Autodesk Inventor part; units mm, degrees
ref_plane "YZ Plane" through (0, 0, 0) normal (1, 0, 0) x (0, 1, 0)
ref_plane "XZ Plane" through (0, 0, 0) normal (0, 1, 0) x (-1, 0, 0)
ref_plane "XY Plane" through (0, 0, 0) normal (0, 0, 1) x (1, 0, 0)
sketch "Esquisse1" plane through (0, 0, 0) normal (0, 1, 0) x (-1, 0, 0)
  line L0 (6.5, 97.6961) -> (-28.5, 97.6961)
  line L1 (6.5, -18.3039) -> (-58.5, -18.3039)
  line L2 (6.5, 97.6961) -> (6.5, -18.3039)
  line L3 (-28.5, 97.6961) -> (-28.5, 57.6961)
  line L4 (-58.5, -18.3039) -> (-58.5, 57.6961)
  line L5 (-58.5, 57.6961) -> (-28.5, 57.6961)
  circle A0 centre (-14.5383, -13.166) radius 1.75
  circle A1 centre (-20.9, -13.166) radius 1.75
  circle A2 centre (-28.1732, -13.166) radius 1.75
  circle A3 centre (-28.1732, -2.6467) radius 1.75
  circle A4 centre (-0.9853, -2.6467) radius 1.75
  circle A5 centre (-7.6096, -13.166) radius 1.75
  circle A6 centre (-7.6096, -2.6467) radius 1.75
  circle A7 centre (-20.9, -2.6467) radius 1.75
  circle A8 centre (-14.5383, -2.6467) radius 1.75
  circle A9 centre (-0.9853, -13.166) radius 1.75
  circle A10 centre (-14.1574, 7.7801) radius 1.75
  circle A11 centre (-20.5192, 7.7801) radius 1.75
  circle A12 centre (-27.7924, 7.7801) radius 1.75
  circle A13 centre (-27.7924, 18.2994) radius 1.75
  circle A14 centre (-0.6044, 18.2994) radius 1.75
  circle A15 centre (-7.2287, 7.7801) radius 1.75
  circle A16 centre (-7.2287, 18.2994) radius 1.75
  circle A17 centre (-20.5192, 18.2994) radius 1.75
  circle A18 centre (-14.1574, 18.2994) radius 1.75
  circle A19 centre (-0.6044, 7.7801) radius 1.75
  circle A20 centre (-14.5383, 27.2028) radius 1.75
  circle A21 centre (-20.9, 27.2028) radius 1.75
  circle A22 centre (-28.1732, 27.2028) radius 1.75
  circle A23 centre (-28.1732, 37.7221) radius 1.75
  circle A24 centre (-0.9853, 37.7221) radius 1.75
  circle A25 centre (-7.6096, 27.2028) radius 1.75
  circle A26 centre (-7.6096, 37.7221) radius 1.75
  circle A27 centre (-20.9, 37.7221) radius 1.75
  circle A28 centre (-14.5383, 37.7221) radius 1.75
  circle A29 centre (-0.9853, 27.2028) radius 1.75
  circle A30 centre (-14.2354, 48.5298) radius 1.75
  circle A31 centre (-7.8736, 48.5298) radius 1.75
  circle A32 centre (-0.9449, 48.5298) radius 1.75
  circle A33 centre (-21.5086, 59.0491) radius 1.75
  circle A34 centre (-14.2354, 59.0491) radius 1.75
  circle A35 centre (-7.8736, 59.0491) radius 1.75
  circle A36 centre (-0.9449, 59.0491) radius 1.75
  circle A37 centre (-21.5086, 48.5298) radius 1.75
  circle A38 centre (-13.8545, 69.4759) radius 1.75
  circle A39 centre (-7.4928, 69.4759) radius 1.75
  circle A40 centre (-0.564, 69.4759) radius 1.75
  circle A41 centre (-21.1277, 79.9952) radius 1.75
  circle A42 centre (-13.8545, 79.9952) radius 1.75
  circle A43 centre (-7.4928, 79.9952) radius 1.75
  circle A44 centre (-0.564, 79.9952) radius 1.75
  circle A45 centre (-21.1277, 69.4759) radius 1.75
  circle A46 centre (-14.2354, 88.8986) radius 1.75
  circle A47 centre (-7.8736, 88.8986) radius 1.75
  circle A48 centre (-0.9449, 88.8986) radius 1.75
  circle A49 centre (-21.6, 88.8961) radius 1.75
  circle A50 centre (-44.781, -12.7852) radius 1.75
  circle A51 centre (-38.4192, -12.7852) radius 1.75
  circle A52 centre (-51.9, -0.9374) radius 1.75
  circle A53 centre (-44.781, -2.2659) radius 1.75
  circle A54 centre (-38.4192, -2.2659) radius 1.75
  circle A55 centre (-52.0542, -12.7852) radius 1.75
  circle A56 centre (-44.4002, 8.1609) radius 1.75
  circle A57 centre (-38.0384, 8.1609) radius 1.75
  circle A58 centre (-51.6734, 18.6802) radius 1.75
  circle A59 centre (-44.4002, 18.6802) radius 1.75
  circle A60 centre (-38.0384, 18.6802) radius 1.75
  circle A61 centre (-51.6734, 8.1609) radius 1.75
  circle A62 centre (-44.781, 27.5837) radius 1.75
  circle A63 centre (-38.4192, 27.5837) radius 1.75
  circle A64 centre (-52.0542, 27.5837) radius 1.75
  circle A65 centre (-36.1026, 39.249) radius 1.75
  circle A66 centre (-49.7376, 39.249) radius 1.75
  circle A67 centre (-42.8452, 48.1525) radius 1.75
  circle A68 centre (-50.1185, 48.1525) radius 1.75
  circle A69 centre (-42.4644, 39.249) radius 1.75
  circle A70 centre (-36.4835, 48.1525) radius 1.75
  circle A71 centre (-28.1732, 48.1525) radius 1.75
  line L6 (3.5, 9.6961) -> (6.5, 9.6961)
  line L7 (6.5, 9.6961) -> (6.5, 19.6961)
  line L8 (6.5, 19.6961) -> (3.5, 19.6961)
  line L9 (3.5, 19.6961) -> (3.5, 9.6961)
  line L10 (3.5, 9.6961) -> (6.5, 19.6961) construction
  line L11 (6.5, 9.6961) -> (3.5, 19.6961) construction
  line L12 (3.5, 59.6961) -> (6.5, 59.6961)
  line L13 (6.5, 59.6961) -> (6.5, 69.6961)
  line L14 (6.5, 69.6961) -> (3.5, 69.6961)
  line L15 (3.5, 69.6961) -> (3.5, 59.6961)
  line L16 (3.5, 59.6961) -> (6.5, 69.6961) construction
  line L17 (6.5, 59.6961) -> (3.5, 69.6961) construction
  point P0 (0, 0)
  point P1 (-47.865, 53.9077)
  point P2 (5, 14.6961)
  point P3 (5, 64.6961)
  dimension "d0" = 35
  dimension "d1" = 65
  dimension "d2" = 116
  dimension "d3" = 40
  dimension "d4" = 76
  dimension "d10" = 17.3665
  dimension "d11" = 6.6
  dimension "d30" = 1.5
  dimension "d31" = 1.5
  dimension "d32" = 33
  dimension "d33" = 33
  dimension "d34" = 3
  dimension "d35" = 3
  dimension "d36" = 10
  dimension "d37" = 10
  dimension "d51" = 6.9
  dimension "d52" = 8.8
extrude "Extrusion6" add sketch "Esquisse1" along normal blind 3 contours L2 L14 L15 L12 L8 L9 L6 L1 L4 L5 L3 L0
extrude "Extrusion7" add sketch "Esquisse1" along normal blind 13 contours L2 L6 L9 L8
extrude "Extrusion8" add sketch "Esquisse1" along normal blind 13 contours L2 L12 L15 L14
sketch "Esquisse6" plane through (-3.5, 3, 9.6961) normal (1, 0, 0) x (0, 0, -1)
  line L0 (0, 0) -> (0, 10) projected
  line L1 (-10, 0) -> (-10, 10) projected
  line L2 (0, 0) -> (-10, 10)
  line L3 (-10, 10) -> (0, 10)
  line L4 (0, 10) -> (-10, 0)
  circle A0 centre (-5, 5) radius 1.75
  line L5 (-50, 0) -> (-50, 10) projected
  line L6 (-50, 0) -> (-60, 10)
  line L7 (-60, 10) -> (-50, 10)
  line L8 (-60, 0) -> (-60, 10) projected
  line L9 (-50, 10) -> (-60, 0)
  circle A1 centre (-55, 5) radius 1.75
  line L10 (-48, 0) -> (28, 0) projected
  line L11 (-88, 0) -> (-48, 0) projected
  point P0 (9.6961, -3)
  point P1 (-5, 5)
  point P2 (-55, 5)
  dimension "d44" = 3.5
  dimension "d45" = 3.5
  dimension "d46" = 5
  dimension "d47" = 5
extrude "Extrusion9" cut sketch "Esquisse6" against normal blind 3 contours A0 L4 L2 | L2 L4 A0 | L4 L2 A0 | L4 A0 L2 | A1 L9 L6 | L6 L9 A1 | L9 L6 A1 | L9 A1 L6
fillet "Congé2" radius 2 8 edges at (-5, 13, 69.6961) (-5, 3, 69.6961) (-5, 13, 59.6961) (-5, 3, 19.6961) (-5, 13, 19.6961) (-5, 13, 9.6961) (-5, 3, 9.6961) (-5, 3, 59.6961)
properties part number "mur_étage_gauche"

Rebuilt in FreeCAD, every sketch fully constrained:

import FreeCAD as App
import Part
import Sketcher


def edges_at(feature, points):
    """Names of the edges that pass closest to the given points."""
    edges = feature.Shape.Edges
    near = lambda p: min(range(len(edges)), key=lambda i: edges[i].distToShape(Part.Vertex(*p))[0])
    return sorted({f"Edge{near(p) + 1}" for p in points})

doc = App.newDocument("Part")
params = doc.addObject("Spreadsheet::Sheet", "Params")
for row, (alias, value) in enumerate([
    ("sketch1_width", "35 mm"),
    ("sketch1_width2", "65 mm"),
    ("sketch1_width3", "3 mm"),
    ("sketch1_height", "40 mm"),
    ("sketch1_height2", "76 mm"),
    ("pad1_length", "3 mm"),
    ("sketch2_width", "3 mm"),
    ("sketch2_height", "10 mm"),
    ("pad2_length", "13 mm"),
    ("sketch3_width", "3 mm"),
    ("sketch3_height", "10 mm"),
    ("pad3_length", "13 mm"),
    ("sketch4_diameter", "3.5 mm"),
    ("pocket1_length", "3 mm"),
    ("fillet_radius", "2 mm"),
], start=1):
    params.set(f"A{row}", alias)
    params.set(f"B{row}", "=" + value)
    params.setAlias(f"B{row}", alias)

body = doc.addObject("PartDesign::Body", "Body")

sketch1 = doc.addObject("Sketcher::SketchObject", "Sketch")
body.addObject(sketch1)
sketch1.AttachmentSupport = (doc.XZ_Plane, [""])
sketch1.MapMode = "FlatFace"
sketch1.addGeometry([
    Part.LineSegment(App.Vector(-6.5, 69.7, 0), App.Vector(-6.5, 97.7, 0)),
    Part.LineSegment(App.Vector(-6.5, 97.7, 0), App.Vector(28.5, 97.7, 0)),
    Part.LineSegment(App.Vector(28.5, 97.7, 0), App.Vector(28.5, 57.7, 0)),
    Part.LineSegment(App.Vector(28.5, 57.7, 0), App.Vector(58.5, 57.7, 0)),
    Part.LineSegment(App.Vector(58.5, 57.7, 0), App.Vector(58.5, -18.3, 0)),
    Part.LineSegment(App.Vector(58.5, -18.3, 0), App.Vector(-6.5, -18.3, 0)),
    Part.LineSegment(App.Vector(-6.5, -18.3, 0), App.Vector(-6.5, 9.7, 0)),
    Part.LineSegment(App.Vector(-6.5, 9.7, 0), App.Vector(-3.5, 9.7, 0)),
    Part.LineSegment(App.Vector(-3.5, 9.7, 0), App.Vector(-3.5, 19.7, 0)),
    Part.LineSegment(App.Vector(-3.5, 19.7, 0), App.Vector(-6.5, 19.7, 0)),
    Part.LineSegment(App.Vector(-6.5, 19.7, 0), App.Vector(-6.5, 59.7, 0)),
    Part.LineSegment(App.Vector(-6.5, 59.7, 0), App.Vector(-3.5, 59.7, 0)),
    Part.LineSegment(App.Vector(-3.5, 59.7, 0), App.Vector(-3.5, 69.7, 0)),
    Part.LineSegment(App.Vector(-3.5, 69.7, 0), App.Vector(-6.5, 69.7, 0)),
    Part.Circle(App.Vector(52.1, -12.8, 0), App.Vector(0, 0, 1), 1.8),
    Part.Circle(App.Vector(44.8, -12.8, 0), App.Vector(0, 0, 1), 1.8),
    Part.Circle(App.Vector(51.9, -0.9, 0), App.Vector(0, 0, 1), 1.8),
    Part.Circle(App.Vector(51.7, 8.2, 0), App.Vector(0, 0, 1), 1.8),
    Part.Circle(App.Vector(44.8, -2.3, 0), App.Vector(0, 0, 1), 1.8),
    Part.Circle(App.Vector(44.4, 8.2, 0), App.Vector(0, 0, 1), 1.8),
    Part.Circle(App.Vector(38.4, -12.8, 0), App.Vector(0, 0, 1), 1.8),
    Part.Circle(App.Vector(28.2, -13.2, 0), App.Vector(0, 0, 1), 1.8),
    Part.Circle(App.Vector(38.4, -2.3, 0), App.Vector(0, 0, 1), 1.8),
    Part.Circle(App.Vector(38, 8.2, 0), App.Vector(0, 0, 1), 1.8),
    Part.Circle(App.Vector(28.2, -2.6, 0), App.Vector(0, 0, 1), 1.8),
    Part.Circle(App.Vector(27.8, 7.8, 0), App.Vector(0, 0, 1), 1.8),
    Part.Circle(App.Vector(51.7, 18.7, 0), App.Vector(0, 0, 1), 1.8),
    Part.Circle(App.Vector(44.4, 18.7, 0), App.Vector(0, 0, 1), 1.8),
    Part.Circle(App.Vector(52.1, 27.6, 0), App.Vector(0, 0, 1), 1.8),
    Part.Circle(App.Vector(44.8, 27.6, 0), App.Vector(0, 0, 1), 1.8),
    Part.Circle(App.Vector(49.7, 39.2, 0), App.Vector(0, 0, 1), 1.8),
    Part.Circle(App.Vector(42.5, 39.2, 0), App.Vector(0, 0, 1), 1.8),
    Part.Circle(App.Vector(38, 18.7, 0), App.Vector(0, 0, 1), 1.8),
    Part.Circle(App.Vector(27.8, 18.3, 0), App.Vector(0, 0, 1), 1.8),
    Part.Circle(App.Vector(38.4, 27.6, 0), App.Vector(0, 0, 1), 1.8),
    Part.Circle(App.Vector(36.1, 39.2, 0), App.Vector(0, 0, 1), 1.8),
    Part.Circle(App.Vector(28.2, 27.2, 0), App.Vector(0, 0, 1), 1.8),
    Part.Circle(App.Vector(28.2, 37.7, 0), App.Vector(0, 0, 1), 1.8),
    Part.Circle(App.Vector(20.9, -13.2, 0), App.Vector(0, 0, 1), 1.8),
    Part.Circle(App.Vector(14.5, -13.2, 0), App.Vector(0, 0, 1), 1.8),
    Part.Circle(App.Vector(20.9, -2.6, 0), App.Vector(0, 0, 1), 1.8),
    Part.Circle(App.Vector(20.5, 7.8, 0), App.Vector(0, 0, 1), 1.8),
    Part.Circle(App.Vector(14.5, -2.6, 0), App.Vector(0, 0, 1), 1.8),
    Part.Circle(App.Vector(14.2, 7.8, 0), App.Vector(0, 0, 1), 1.8),
    Part.Circle(App.Vector(7.6, -13.2, 0), App.Vector(0, 0, 1), 1.8),
    Part.Circle(App.Vector(1, -13.2, 0), App.Vector(0, 0, 1), 1.8),
    Part.Circle(App.Vector(7.6, -2.6, 0), App.Vector(0, 0, 1), 1.8),
    Part.Circle(App.Vector(7.2, 7.8, 0), App.Vector(0, 0, 1), 1.8),
    Part.Circle(App.Vector(1, -2.6, 0), App.Vector(0, 0, 1), 1.8),
    Part.Circle(App.Vector(0.6, 7.8, 0), App.Vector(0, 0, 1), 1.8),
    Part.Circle(App.Vector(20.5, 18.3, 0), App.Vector(0, 0, 1), 1.8),
    Part.Circle(App.Vector(14.2, 18.3, 0), App.Vector(0, 0, 1), 1.8),
    Part.Circle(App.Vector(20.9, 27.2, 0), App.Vector(0, 0, 1), 1.8),
    Part.Circle(App.Vector(20.9, 37.7, 0), App.Vector(0, 0, 1), 1.8),
    Part.Circle(App.Vector(14.5, 27.2, 0), App.Vector(0, 0, 1), 1.8),
    Part.Circle(App.Vector(14.5, 37.7, 0), App.Vector(0, 0, 1), 1.8),
    Part.Circle(App.Vector(7.2, 18.3, 0), App.Vector(0, 0, 1), 1.8),
    Part.Circle(App.Vector(0.6, 18.3, 0), App.Vector(0, 0, 1), 1.8),
    Part.Circle(App.Vector(7.6, 27.2, 0), App.Vector(0, 0, 1), 1.8),
    Part.Circle(App.Vector(7.6, 37.7, 0), App.Vector(0, 0, 1), 1.8),
    Part.Circle(App.Vector(1, 27.2, 0), App.Vector(0, 0, 1), 1.8),
    Part.Circle(App.Vector(1, 37.7, 0), App.Vector(0, 0, 1), 1.8),
    Part.Circle(App.Vector(50.1, 48.2, 0), App.Vector(0, 0, 1), 1.8),
    Part.Circle(App.Vector(42.8, 48.2, 0), App.Vector(0, 0, 1), 1.8),
    Part.Circle(App.Vector(36.5, 48.2, 0), App.Vector(0, 0, 1), 1.8),
    Part.Circle(App.Vector(28.2, 48.2, 0), App.Vector(0, 0, 1), 1.8),
    Part.Circle(App.Vector(21.5, 48.5, 0), App.Vector(0, 0, 1), 1.8),
    Part.Circle(App.Vector(14.2, 48.5, 0), App.Vector(0, 0, 1), 1.8),
    Part.Circle(App.Vector(21.5, 59, 0), App.Vector(0, 0, 1), 1.8),
    Part.Circle(App.Vector(14.2, 59, 0), App.Vector(0, 0, 1), 1.8),
    Part.Circle(App.Vector(7.9, 48.5, 0), App.Vector(0, 0, 1), 1.8),
    Part.Circle(App.Vector(0.9, 48.5, 0), App.Vector(0, 0, 1), 1.8),
    Part.Circle(App.Vector(7.9, 59, 0), App.Vector(0, 0, 1), 1.8),
    Part.Circle(App.Vector(0.9, 59, 0), App.Vector(0, 0, 1), 1.8),
    Part.Circle(App.Vector(21.1, 69.5, 0), App.Vector(0, 0, 1), 1.8),
    Part.Circle(App.Vector(21.1, 80, 0), App.Vector(0, 0, 1), 1.8),
    Part.Circle(App.Vector(13.9, 69.5, 0), App.Vector(0, 0, 1), 1.8),
    Part.Circle(App.Vector(13.9, 80, 0), App.Vector(0, 0, 1), 1.8),
    Part.Circle(App.Vector(21.6, 88.9, 0), App.Vector(0, 0, 1), 1.8),
    Part.Circle(App.Vector(14.2, 88.9, 0), App.Vector(0, 0, 1), 1.8),
    Part.Circle(App.Vector(7.5, 69.5, 0), App.Vector(0, 0, 1), 1.8),
    Part.Circle(App.Vector(7.5, 80, 0), App.Vector(0, 0, 1), 1.8),
    Part.Circle(App.Vector(0.6, 69.5, 0), App.Vector(0, 0, 1), 1.8),
    Part.Circle(App.Vector(0.6, 80, 0), App.Vector(0, 0, 1), 1.8),
    Part.Circle(App.Vector(7.9, 88.9, 0), App.Vector(0, 0, 1), 1.8),
    Part.Circle(App.Vector(0.9, 88.9, 0), App.Vector(0, 0, 1), 1.8),
], False)
sketch1.addConstraint([
    Sketcher.Constraint("Coincident", 0, 2, 1, 1),
    Sketcher.Constraint("Coincident", 1, 2, 2, 1),
    Sketcher.Constraint("Coincident", 2, 2, 3, 1),
    Sketcher.Constraint("Coincident", 3, 2, 4, 1),
    Sketcher.Constraint("Coincident", 4, 2, 5, 1),
    Sketcher.Constraint("Coincident", 5, 2, 6, 1),
    Sketcher.Constraint("Coincident", 6, 2, 7, 1),
    Sketcher.Constraint("Coincident", 7, 2, 8, 1),
    Sketcher.Constraint("Coincident", 8, 2, 9, 1),
    Sketcher.Constraint("Coincident", 9, 2, 10, 1),
    Sketcher.Constraint("Coincident", 10, 2, 11, 1),
    Sketcher.Constraint("Coincident", 11, 2, 12, 1),
    Sketcher.Constraint("Coincident", 12, 2, 13, 1),
    Sketcher.Constraint("Coincident", 13, 2, 0, 1),
    Sketcher.Constraint("Vertical", 0),
    Sketcher.Constraint("Horizontal", 1),
    Sketcher.Constraint("Vertical", 2),
    Sketcher.Constraint("Horizontal", 3),
    Sketcher.Constraint("Vertical", 4),
    Sketcher.Constraint("Horizontal", 5),
    Sketcher.Constraint("Vertical", 6),
    Sketcher.Constraint("Horizontal", 7),
    Sketcher.Constraint("Vertical", 8),
    Sketcher.Constraint("Horizontal", 9),
    Sketcher.Constraint("Vertical", 10),
    Sketcher.Constraint("Horizontal", 11),
    Sketcher.Constraint("Vertical", 12),
    Sketcher.Constraint("Horizontal", 13),
    Sketcher.Constraint("Equal", 14, 15),
    Sketcher.Constraint("Equal", 15, 16),
    Sketcher.Constraint("Equal", 16, 17),
    Sketcher.Constraint("Equal", 17, 18),
    Sketcher.Constraint("Equal", 18, 19),
    Sketcher.Constraint("Equal", 19, 20),
    Sketcher.Constraint("Equal", 20, 21),
    Sketcher.Constraint("Equal", 21, 22),
    Sketcher.Constraint("Equal", 22, 23),
    Sketcher.Constraint("Equal", 23, 24),
    Sketcher.Constraint("Equal", 24, 25),
    Sketcher.Constraint("Equal", 25, 26),
    Sketcher.Constraint("Equal", 26, 27),
    Sketcher.Constraint("Equal", 27, 28),
    Sketcher.Constraint("Equal", 28, 29),
    Sketcher.Constraint("Equal", 29, 30),
    Sketcher.Constraint("Equal", 30, 31),
    Sketcher.Constraint("Equal", 31, 32),
    Sketcher.Constraint("Equal", 32, 33),
    Sketcher.Constraint("Equal", 33, 34),
    Sketcher.Constraint("Equal", 34, 35),
    Sketcher.Constraint("Equal", 35, 36),
    Sketcher.Constraint("Equal", 36, 37),
    Sketcher.Constraint("Equal", 37, 38),
    Sketcher.Constraint("Equal", 38, 39),
    Sketcher.Constraint("Equal", 39, 40),
    Sketcher.Constraint("Equal", 40, 41),
    Sketcher.Constraint("Equal", 41, 42),
    Sketcher.Constraint("Equal", 42, 43),
    Sketcher.Constraint("Equal", 43, 44),
    Sketcher.Constraint("Equal", 44, 45),
    Sketcher.Constraint("Equal", 45, 46),
    Sketcher.Constraint("Equal", 46, 47),
    Sketcher.Constraint("Equal", 47, 48),
    Sketcher.Constraint("Equal", 48, 49),
    Sketcher.Constraint("Equal", 49, 50),
    Sketcher.Constraint("Equal", 50, 51),
    Sketcher.Constraint("Equal", 51, 52),
    Sketcher.Constraint("Equal", 52, 53),
    Sketcher.Constraint("Equal", 53, 54),
    Sketcher.Constraint("Equal", 54, 55),
    Sketcher.Constraint("Equal", 55, 56),
    Sketcher.Constraint("Equal", 56, 57),
    Sketcher.Constraint("Equal", 57, 58),
    Sketcher.Constraint("Equal", 58, 59),
    Sketcher.Constraint("Equal", 59, 60),
    Sketcher.Constraint("Equal", 60, 61),
    Sketcher.Constraint("Equal", 61, 62),
    Sketcher.Constraint("Equal", 62, 63),
    Sketcher.Constraint("Equal", 63, 64),
    Sketcher.Constraint("Equal", 64, 65),
    Sketcher.Constraint("Equal", 65, 66),
    Sketcher.Constraint("Equal", 66, 67),
    Sketcher.Constraint("Equal", 67, 68),
    Sketcher.Constraint("Equal", 68, 69),
    Sketcher.Constraint("Equal", 69, 70),
    Sketcher.Constraint("Equal", 70, 71),
    Sketcher.Constraint("Equal", 71, 72),
    Sketcher.Constraint("Equal", 72, 73),
    Sketcher.Constraint("Equal", 73, 74),
    Sketcher.Constraint("Equal", 74, 75),
    Sketcher.Constraint("Equal", 75, 76),
    Sketcher.Constraint("Equal", 76, 77),
    Sketcher.Constraint("Equal", 77, 78),
    Sketcher.Constraint("Equal", 78, 79),
    Sketcher.Constraint("Equal", 79, 80),
    Sketcher.Constraint("Equal", 80, 81),
    Sketcher.Constraint("Equal", 81, 82),
    Sketcher.Constraint("Equal", 82, 83),
    Sketcher.Constraint("Equal", 83, 84),
    Sketcher.Constraint("Equal", 84, 85),
    Sketcher.Constraint("Horizontal", 14, 3, 15, 3),
    Sketcher.Constraint("Horizontal", 17, 3, 19, 3),
    Sketcher.Constraint("Horizontal", 15, 3, 20, 3),
    Sketcher.Constraint("Horizontal", 18, 3, 22, 3),
    Sketcher.Constraint("Horizontal", 19, 3, 23, 3),
    Sketcher.Constraint("Horizontal", 26, 3, 27, 3),
    Sketcher.Constraint("Horizontal", 28, 3, 29, 3),
    Sketcher.Constraint("Horizontal", 30, 3, 31, 3),
    Sketcher.Constraint("Horizontal", 27, 3, 32, 3),
    Sketcher.Constraint("Horizontal", 29, 3, 34, 3),
    Sketcher.Constraint("Horizontal", 31, 3, 35, 3),
    Sketcher.Constraint("Horizontal", 21, 3, 38, 3),
    Sketcher.Constraint("Horizontal", 38, 3, 39, 3),
    Sketcher.Constraint("Horizontal", 24, 3, 40, 3),
    Sketcher.Constraint("Horizontal", 25, 3, 41, 3),
    Sketcher.Constraint("Horizontal", 40, 3, 42, 3),
    Sketcher.Constraint("Horizontal", 41, 3, 43, 3),
    Sketcher.Constraint("Horizontal", 39, 3, 44, 3),
    Sketcher.Constraint("Horizontal", 44, 3, 45, 3),
    Sketcher.Constraint("Horizontal", 42, 3, 46, 3),
    Sketcher.Constraint("Horizontal", 43, 3, 47, 3),
    Sketcher.Constraint("Horizontal", 46, 3, 48, 3),
    Sketcher.Constraint("Horizontal", 47, 3, 49, 3),
    Sketcher.Constraint("Horizontal", 33, 3, 50, 3),
    Sketcher.Constraint("Horizontal", 50, 3, 51, 3),
    Sketcher.Constraint("Horizontal", 36, 3, 52, 3),
    Sketcher.Constraint("Horizontal", 37, 3, 53, 3),
    Sketcher.Constraint("Horizontal", 52, 3, 54, 3),
    Sketcher.Constraint("Horizontal", 53, 3, 55, 3),
    Sketcher.Constraint("Horizontal", 51, 3, 56, 3),
    Sketcher.Constraint("Horizontal", 56, 3, 57, 3),
    Sketcher.Constraint("Horizontal", 54, 3, 58, 3),
    Sketcher.Constraint("Horizontal", 55, 3, 59, 3),
    Sketcher.Constraint("Horizontal", 58, 3, 60, 3),
    Sketcher.Constraint("Horizontal", 59, 3, 61, 3),
    Sketcher.Constraint("Horizontal", 62, 3, 63, 3),
    Sketcher.Constraint("Horizontal", 63, 3, 64, 3),
    Sketcher.Constraint("Horizontal", 64, 3, 65, 3),
    Sketcher.Constraint("Horizontal", 66, 3, 67, 3),
    Sketcher.Constraint("Horizontal", 68, 3, 69, 3),
    Sketcher.Constraint("Horizontal", 67, 3, 70, 3),
    Sketcher.Constraint("Horizontal", 70, 3, 71, 3),
    Sketcher.Constraint("Horizontal", 69, 3, 72, 3),
    Sketcher.Constraint("Horizontal", 72, 3, 73, 3),
    Sketcher.Constraint("Horizontal", 74, 3, 76, 3),
    Sketcher.Constraint("Horizontal", 75, 3, 77, 3),
    Sketcher.Constraint("Horizontal", 76, 3, 80, 3),
    Sketcher.Constraint("Horizontal", 77, 3, 81, 3),
    Sketcher.Constraint("Horizontal", 80, 3, 82, 3),
    Sketcher.Constraint("Horizontal", 81, 3, 83, 3),
    Sketcher.Constraint("Horizontal", 79, 3, 84, 3),
    Sketcher.Constraint("Horizontal", 84, 3, 85, 3),
    Sketcher.Constraint("Vertical", 15, 3, 18, 3),
    Sketcher.Constraint("Vertical", 20, 3, 22, 3),
    Sketcher.Constraint("Vertical", 21, 3, 24, 3),
    Sketcher.Constraint("Vertical", 17, 3, 26, 3),
    Sketcher.Constraint("Vertical", 19, 3, 27, 3),
    Sketcher.Constraint("Vertical", 14, 3, 28, 3),
    Sketcher.Constraint("Vertical", 18, 3, 29, 3),
    Sketcher.Constraint("Vertical", 23, 3, 32, 3),
    Sketcher.Constraint("Vertical", 25, 3, 33, 3),
    Sketcher.Constraint("Vertical", 22, 3, 34, 3),
    Sketcher.Constraint("Vertical", 24, 3, 36, 3),
    Sketcher.Constraint("Vertical", 36, 3, 37, 3),
    Sketcher.Constraint("Vertical", 38, 3, 40, 3),
    Sketcher.Constraint("Vertical", 39, 3, 42, 3),
    Sketcher.Constraint("Vertical", 44, 3, 46, 3),
    Sketcher.Constraint("Vertical", 45, 3, 48, 3),
    Sketcher.Constraint("Vertical", 41, 3, 50, 3),
    Sketcher.Constraint("Vertical", 43, 3, 51, 3),
    Sketcher.Constraint("Vertical", 40, 3, 52, 3),
    Sketcher.Constraint("Vertical", 52, 3, 53, 3),
    Sketcher.Constraint("Vertical", 42, 3, 54, 3),
    Sketcher.Constraint("Vertical", 54, 3, 55, 3),
    Sketcher.Constraint("Vertical", 47, 3, 56, 3),
    Sketcher.Constraint("Vertical", 49, 3, 57, 3),
    Sketcher.Constraint("Vertical", 46, 3, 58, 3),
    Sketcher.Constraint("Vertical", 58, 3, 59, 3),
    Sketcher.Constraint("Vertical", 48, 3, 60, 3),
    Sketcher.Constraint("Vertical", 60, 3, 61, 3),
    Sketcher.Constraint("Vertical", 37, 3, 65, 3),
    Sketcher.Constraint("Vertical", 66, 3, 68, 3),
    Sketcher.Constraint("Vertical", 67, 3, 69, 3),
    Sketcher.Constraint("Vertical", 70, 3, 72, 3),
    Sketcher.Constraint("Vertical", 71, 3, 73, 3),
    Sketcher.Constraint("Vertical", 74, 3, 75, 3),
    Sketcher.Constraint("Vertical", 76, 3, 77, 3),
    Sketcher.Constraint("Vertical", 69, 3, 79, 3),
    Sketcher.Constraint("Vertical", 80, 3, 81, 3),
    Sketcher.Constraint("Vertical", 82, 3, 83, 3),
    Sketcher.Constraint("Vertical", 72, 3, 84, 3),
    Sketcher.Constraint("Vertical", 73, 3, 85, 3),
    Sketcher.Constraint("Vertical", 0, 2, 5, 2),
    Sketcher.Constraint("Vertical", 6, 2, 9, 2),
    Sketcher.Constraint("Vertical", 8, 2, 11, 2),
    Sketcher.Constraint("Equal", 0, 6),
    Sketcher.Constraint("Equal", 2, 10),
    Sketcher.Constraint("Equal", 8, 12),
    Sketcher.Constraint("DistanceX", 1, 1, 1, 2, 35.0),
    Sketcher.Constraint("DistanceX", 5, 2, 5, 1, 65.0),
    Sketcher.Constraint("DistanceX", 7, 1, 7, 2, 3.0),
    Sketcher.Constraint("DistanceY", 2, 2, 2, 1, 40.0),
    Sketcher.Constraint("DistanceY", 4, 2, 4, 1, 76.0),
    Sketcher.Constraint("DistanceY", 8, 1, 8, 2, 10.0),
    Sketcher.Constraint("Diameter", 14, 3.5),
    Sketcher.Constraint("DistanceX", -1, 1, 16, 3, 51.9),
    Sketcher.Constraint("DistanceX", -1, 1, 38, 3, 20.9),
    Sketcher.Constraint("DistanceX", -1, 1, 78, 3, 21.6),
    Sketcher.Constraint("DistanceX", 0, 2, -1, 1, 6.5),
    Sketcher.Constraint("DistanceY", -1, 1, 25, 3, 7.78),
    Sketcher.Constraint("DistanceX", -1, 1, 15, 3, 44.781),
    Sketcher.Constraint("DistanceY", -1, 1, 17, 3, 8.161),
    Sketcher.Constraint("DistanceY", 18, 3, -1, 1, 2.266),
    Sketcher.Constraint("DistanceY", 21, 3, -1, 1, 13.166),
    Sketcher.Constraint("DistanceY", -1, 1, 30, 3, 39.249),
    Sketcher.Constraint("DistanceY", -1, 1, 37, 3, 37.722),
    Sketcher.Constraint("DistanceY", -1, 1, 68, 3, 59.049),
    Sketcher.Constraint("DistanceX", -1, 1, 71, 3, 0.945),
    Sketcher.Constraint("DistanceY", -1, 1, 74, 3, 69.476),
    Sketcher.Constraint("DistanceY", -1, 1, 78, 3, 88.896),
    Sketcher.Constraint("DistanceX", -1, 1, 82, 3, 0.564),
    Sketcher.Constraint("DistanceY", -1, 1, 0, 2, 97.696),
    Sketcher.Constraint("DistanceX", -1, 1, 14, 3, 52.0542),
    Sketcher.Constraint("DistanceY", 14, 3, -1, 1, 12.7852),
    Sketcher.Constraint("DistanceY", 16, 3, -1, 1, 0.9374),
    Sketcher.Constraint("DistanceX", -1, 1, 17, 3, 51.6734),
    Sketcher.Constraint("DistanceX", -1, 1, 19, 3, 44.4002),
    Sketcher.Constraint("DistanceX", -1, 1, 20, 3, 38.4192),
    Sketcher.Constraint("DistanceX", -1, 1, 21, 3, 28.1732),
    Sketcher.Constraint("DistanceX", -1, 1, 23, 3, 38.0384),
    Sketcher.Constraint("DistanceY", 24, 3, -1, 1, 2.6467),
    Sketcher.Constraint("DistanceX", -1, 1, 25, 3, 27.7924),
    Sketcher.Constraint("DistanceY", -1, 1, 26, 3, 18.6802),
    Sketcher.Constraint("DistanceY", -1, 1, 28, 3, 27.5837),
    Sketcher.Constraint("DistanceX", -1, 1, 30, 3, 49.7376),
    Sketcher.Constraint("DistanceX", -1, 1, 31, 3, 42.4644),
    Sketcher.Constraint("DistanceY", -1, 1, 33, 3, 18.2994),
    Sketcher.Constraint("DistanceX", -1, 1, 35, 3, 36.1026),
    Sketcher.Constraint("DistanceY", -1, 1, 36, 3, 27.2028),
    Sketcher.Constraint("DistanceX", -1, 1, 39, 3, 14.5383),
    Sketcher.Constraint("DistanceX", -1, 1, 41, 3, 20.5192),
    Sketcher.Constraint("DistanceX", -1, 1, 43, 3, 14.1574),
    Sketcher.Constraint("DistanceX", -1, 1, 44, 3, 7.6096),
    Sketcher.Constraint("DistanceX", -1, 1, 45, 3, 0.9853),
    Sketcher.Constraint("DistanceX", -1, 1, 47, 3, 7.2287),
    Sketcher.Constraint("DistanceX", -1, 1, 49, 3, 0.6044),
    Sketcher.Constraint("DistanceX", -1, 1, 62, 3, 50.1185),
    Sketcher.Constraint("DistanceY", -1, 1, 62, 3, 48.1525),
    Sketcher.Constraint("DistanceX", -1, 1, 63, 3, 42.8452),
    Sketcher.Constraint("DistanceX", -1, 1, 64, 3, 36.4835),
    Sketcher.Constraint("DistanceX", -1, 1, 66, 3, 21.5086),
    Sketcher.Constraint("DistanceY", -1, 1, 66, 3, 48.5298),
    Sketcher.Constraint("DistanceX", -1, 1, 67, 3, 14.2354),
    Sketcher.Constraint("DistanceX", -1, 1, 70, 3, 7.8736),
    Sketcher.Constraint("DistanceX", -1, 1, 74, 3, 21.1277),
    Sketcher.Constraint("DistanceY", -1, 1, 75, 3, 79.9952),
    Sketcher.Constraint("DistanceX", -1, 1, 76, 3, 13.8545),
    Sketcher.Constraint("DistanceY", -1, 1, 79, 3, 88.8986),
    Sketcher.Constraint("DistanceX", -1, 1, 80, 3, 7.4928),
])
sketch1.setExpression("Constraints[197]", "Params.sketch1_width")
sketch1.setExpression("Constraints[198]", "Params.sketch1_width2")
sketch1.setExpression("Constraints[199]", "Params.sketch1_width3")
sketch1.setExpression("Constraints[200]", "Params.sketch1_height")
sketch1.setExpression("Constraints[201]", "Params.sketch1_height2")
pad1 = doc.addObject("PartDesign::Pad", "Pad")
body.addObject(pad1)
pad1.Profile = sketch1
pad1.setExpression("Length", "Params.pad1_length")
pad1.Reversed = True

sketch2 = doc.addObject("Sketcher::SketchObject", "Sketch001")
body.addObject(sketch2)
sketch2.AttachmentSupport = (doc.XZ_Plane, [""])
sketch2.MapMode = "FlatFace"
sketch2.addGeometry([
    Part.LineSegment(App.Vector(-6.5, 9.7, 0), App.Vector(-6.5, 19.7, 0)),
    Part.LineSegment(App.Vector(-6.5, 19.7, 0), App.Vector(-3.5, 19.7, 0)),
    Part.LineSegment(App.Vector(-3.5, 19.7, 0), App.Vector(-3.5, 9.7, 0)),
    Part.LineSegment(App.Vector(-3.5, 9.7, 0), App.Vector(-6.5, 9.7, 0)),
], False)
sketch2.addConstraint([
    Sketcher.Constraint("Coincident", 0, 2, 1, 1),
    Sketcher.Constraint("Coincident", 1, 2, 2, 1),
    Sketcher.Constraint("Coincident", 2, 2, 3, 1),
    Sketcher.Constraint("Coincident", 3, 2, 0, 1),
    Sketcher.Constraint("Vertical", 0),
    Sketcher.Constraint("Horizontal", 1),
    Sketcher.Constraint("Vertical", 2),
    Sketcher.Constraint("Horizontal", 3),
    Sketcher.Constraint("DistanceX", 1, 1, 1, 2, 3.0),
    Sketcher.Constraint("DistanceY", 0, 1, 0, 2, 10.0),
    Sketcher.Constraint("DistanceX", 0, 2, -1, 1, 6.5),
    Sketcher.Constraint("DistanceY", -1, 1, 0, 2, 19.696),
])
sketch2.setExpression("Constraints[8]", "Params.sketch2_width")
sketch2.setExpression("Constraints[9]", "Params.sketch2_height")
pad2 = doc.addObject("PartDesign::Pad", "Pad001")
body.addObject(pad2)
pad2.Profile = sketch2
pad2.setExpression("Length", "Params.pad2_length")
pad2.Reversed = True

sketch3 = doc.addObject("Sketcher::SketchObject", "Sketch002")
body.addObject(sketch3)
sketch3.AttachmentSupport = (doc.XZ_Plane, [""])
sketch3.MapMode = "FlatFace"
sketch3.addGeometry([
    Part.LineSegment(App.Vector(-6.5, 59.7, 0), App.Vector(-6.5, 69.7, 0)),
    Part.LineSegment(App.Vector(-6.5, 69.7, 0), App.Vector(-3.5, 69.7, 0)),
    Part.LineSegment(App.Vector(-3.5, 69.7, 0), App.Vector(-3.5, 59.7, 0)),
    Part.LineSegment(App.Vector(-3.5, 59.7, 0), App.Vector(-6.5, 59.7, 0)),
], False)
sketch3.addConstraint([
    Sketcher.Constraint("Coincident", 0, 2, 1, 1),
    Sketcher.Constraint("Coincident", 1, 2, 2, 1),
    Sketcher.Constraint("Coincident", 2, 2, 3, 1),
    Sketcher.Constraint("Coincident", 3, 2, 0, 1),
    Sketcher.Constraint("Vertical", 0),
    Sketcher.Constraint("Horizontal", 1),
    Sketcher.Constraint("Vertical", 2),
    Sketcher.Constraint("Horizontal", 3),
    Sketcher.Constraint("DistanceX", 1, 1, 1, 2, 3.0),
    Sketcher.Constraint("DistanceY", 0, 1, 0, 2, 10.0),
    Sketcher.Constraint("DistanceX", 0, 2, -1, 1, 6.5),
    Sketcher.Constraint("DistanceY", -1, 1, 0, 2, 69.696),
])
sketch3.setExpression("Constraints[8]", "Params.sketch3_width")
sketch3.setExpression("Constraints[9]", "Params.sketch3_height")
pad3 = doc.addObject("PartDesign::Pad", "Pad002")
body.addObject(pad3)
pad3.Profile = sketch3
pad3.setExpression("Length", "Params.pad3_length")
pad3.Reversed = True

sketch4 = doc.addObject("Sketcher::SketchObject", "Sketch003")
body.addObject(sketch4)
sketch4.AttachmentSupport = (doc.YZ_Plane, [""])
sketch4.MapMode = "FlatFace"
sketch4.AttachmentOffset = App.Placement(App.Vector(0, 0, -3.5), App.Rotation())
sketch4.addGeometry([
    Part.Circle(App.Vector(8, 14.7, 0), App.Vector(0, 0, 1), 1.8),
    Part.Circle(App.Vector(8, 64.7, 0), App.Vector(0, 0, 1), 1.8),
], False)
sketch4.addConstraint([
    Sketcher.Constraint("Equal", 0, 1),
    Sketcher.Constraint("Vertical", 0, 3, 1, 3),
    Sketcher.Constraint("Diameter", 0, 3.5),
    Sketcher.Constraint("DistanceX", -1, 1, 0, 3, 8.0),
    Sketcher.Constraint("DistanceY", 0, 3, 1, 3, 50.0),
    Sketcher.Constraint("DistanceY", -1, 1, 0, 3, 14.696),
])
sketch4.setExpression("Constraints[2]", "Params.sketch4_diameter")
pocket1 = doc.addObject("PartDesign::Pocket", "Pocket")
body.addObject(pocket1)
pocket1.Profile = sketch4
pocket1.setExpression("Length", "Params.pocket1_length")
doc.recompute()

fillet = doc.addObject("PartDesign::Fillet", "Fillet")
body.addObject(fillet)
fillet.Base = (pocket1, edges_at(pocket1, [
    (-5, 13, 69.696),
    (-5, 3, 69.696),
    (-5, 13, 59.696),
    (-5, 3, 19.696),
    (-5, 13, 19.696),
    (-5, 13, 9.696),
    (-5, 3, 9.696),
    (-5, 3, 59.696),
]))
fillet.setExpression("Radius", "Params.fillet_radius")

doc.recompute()
